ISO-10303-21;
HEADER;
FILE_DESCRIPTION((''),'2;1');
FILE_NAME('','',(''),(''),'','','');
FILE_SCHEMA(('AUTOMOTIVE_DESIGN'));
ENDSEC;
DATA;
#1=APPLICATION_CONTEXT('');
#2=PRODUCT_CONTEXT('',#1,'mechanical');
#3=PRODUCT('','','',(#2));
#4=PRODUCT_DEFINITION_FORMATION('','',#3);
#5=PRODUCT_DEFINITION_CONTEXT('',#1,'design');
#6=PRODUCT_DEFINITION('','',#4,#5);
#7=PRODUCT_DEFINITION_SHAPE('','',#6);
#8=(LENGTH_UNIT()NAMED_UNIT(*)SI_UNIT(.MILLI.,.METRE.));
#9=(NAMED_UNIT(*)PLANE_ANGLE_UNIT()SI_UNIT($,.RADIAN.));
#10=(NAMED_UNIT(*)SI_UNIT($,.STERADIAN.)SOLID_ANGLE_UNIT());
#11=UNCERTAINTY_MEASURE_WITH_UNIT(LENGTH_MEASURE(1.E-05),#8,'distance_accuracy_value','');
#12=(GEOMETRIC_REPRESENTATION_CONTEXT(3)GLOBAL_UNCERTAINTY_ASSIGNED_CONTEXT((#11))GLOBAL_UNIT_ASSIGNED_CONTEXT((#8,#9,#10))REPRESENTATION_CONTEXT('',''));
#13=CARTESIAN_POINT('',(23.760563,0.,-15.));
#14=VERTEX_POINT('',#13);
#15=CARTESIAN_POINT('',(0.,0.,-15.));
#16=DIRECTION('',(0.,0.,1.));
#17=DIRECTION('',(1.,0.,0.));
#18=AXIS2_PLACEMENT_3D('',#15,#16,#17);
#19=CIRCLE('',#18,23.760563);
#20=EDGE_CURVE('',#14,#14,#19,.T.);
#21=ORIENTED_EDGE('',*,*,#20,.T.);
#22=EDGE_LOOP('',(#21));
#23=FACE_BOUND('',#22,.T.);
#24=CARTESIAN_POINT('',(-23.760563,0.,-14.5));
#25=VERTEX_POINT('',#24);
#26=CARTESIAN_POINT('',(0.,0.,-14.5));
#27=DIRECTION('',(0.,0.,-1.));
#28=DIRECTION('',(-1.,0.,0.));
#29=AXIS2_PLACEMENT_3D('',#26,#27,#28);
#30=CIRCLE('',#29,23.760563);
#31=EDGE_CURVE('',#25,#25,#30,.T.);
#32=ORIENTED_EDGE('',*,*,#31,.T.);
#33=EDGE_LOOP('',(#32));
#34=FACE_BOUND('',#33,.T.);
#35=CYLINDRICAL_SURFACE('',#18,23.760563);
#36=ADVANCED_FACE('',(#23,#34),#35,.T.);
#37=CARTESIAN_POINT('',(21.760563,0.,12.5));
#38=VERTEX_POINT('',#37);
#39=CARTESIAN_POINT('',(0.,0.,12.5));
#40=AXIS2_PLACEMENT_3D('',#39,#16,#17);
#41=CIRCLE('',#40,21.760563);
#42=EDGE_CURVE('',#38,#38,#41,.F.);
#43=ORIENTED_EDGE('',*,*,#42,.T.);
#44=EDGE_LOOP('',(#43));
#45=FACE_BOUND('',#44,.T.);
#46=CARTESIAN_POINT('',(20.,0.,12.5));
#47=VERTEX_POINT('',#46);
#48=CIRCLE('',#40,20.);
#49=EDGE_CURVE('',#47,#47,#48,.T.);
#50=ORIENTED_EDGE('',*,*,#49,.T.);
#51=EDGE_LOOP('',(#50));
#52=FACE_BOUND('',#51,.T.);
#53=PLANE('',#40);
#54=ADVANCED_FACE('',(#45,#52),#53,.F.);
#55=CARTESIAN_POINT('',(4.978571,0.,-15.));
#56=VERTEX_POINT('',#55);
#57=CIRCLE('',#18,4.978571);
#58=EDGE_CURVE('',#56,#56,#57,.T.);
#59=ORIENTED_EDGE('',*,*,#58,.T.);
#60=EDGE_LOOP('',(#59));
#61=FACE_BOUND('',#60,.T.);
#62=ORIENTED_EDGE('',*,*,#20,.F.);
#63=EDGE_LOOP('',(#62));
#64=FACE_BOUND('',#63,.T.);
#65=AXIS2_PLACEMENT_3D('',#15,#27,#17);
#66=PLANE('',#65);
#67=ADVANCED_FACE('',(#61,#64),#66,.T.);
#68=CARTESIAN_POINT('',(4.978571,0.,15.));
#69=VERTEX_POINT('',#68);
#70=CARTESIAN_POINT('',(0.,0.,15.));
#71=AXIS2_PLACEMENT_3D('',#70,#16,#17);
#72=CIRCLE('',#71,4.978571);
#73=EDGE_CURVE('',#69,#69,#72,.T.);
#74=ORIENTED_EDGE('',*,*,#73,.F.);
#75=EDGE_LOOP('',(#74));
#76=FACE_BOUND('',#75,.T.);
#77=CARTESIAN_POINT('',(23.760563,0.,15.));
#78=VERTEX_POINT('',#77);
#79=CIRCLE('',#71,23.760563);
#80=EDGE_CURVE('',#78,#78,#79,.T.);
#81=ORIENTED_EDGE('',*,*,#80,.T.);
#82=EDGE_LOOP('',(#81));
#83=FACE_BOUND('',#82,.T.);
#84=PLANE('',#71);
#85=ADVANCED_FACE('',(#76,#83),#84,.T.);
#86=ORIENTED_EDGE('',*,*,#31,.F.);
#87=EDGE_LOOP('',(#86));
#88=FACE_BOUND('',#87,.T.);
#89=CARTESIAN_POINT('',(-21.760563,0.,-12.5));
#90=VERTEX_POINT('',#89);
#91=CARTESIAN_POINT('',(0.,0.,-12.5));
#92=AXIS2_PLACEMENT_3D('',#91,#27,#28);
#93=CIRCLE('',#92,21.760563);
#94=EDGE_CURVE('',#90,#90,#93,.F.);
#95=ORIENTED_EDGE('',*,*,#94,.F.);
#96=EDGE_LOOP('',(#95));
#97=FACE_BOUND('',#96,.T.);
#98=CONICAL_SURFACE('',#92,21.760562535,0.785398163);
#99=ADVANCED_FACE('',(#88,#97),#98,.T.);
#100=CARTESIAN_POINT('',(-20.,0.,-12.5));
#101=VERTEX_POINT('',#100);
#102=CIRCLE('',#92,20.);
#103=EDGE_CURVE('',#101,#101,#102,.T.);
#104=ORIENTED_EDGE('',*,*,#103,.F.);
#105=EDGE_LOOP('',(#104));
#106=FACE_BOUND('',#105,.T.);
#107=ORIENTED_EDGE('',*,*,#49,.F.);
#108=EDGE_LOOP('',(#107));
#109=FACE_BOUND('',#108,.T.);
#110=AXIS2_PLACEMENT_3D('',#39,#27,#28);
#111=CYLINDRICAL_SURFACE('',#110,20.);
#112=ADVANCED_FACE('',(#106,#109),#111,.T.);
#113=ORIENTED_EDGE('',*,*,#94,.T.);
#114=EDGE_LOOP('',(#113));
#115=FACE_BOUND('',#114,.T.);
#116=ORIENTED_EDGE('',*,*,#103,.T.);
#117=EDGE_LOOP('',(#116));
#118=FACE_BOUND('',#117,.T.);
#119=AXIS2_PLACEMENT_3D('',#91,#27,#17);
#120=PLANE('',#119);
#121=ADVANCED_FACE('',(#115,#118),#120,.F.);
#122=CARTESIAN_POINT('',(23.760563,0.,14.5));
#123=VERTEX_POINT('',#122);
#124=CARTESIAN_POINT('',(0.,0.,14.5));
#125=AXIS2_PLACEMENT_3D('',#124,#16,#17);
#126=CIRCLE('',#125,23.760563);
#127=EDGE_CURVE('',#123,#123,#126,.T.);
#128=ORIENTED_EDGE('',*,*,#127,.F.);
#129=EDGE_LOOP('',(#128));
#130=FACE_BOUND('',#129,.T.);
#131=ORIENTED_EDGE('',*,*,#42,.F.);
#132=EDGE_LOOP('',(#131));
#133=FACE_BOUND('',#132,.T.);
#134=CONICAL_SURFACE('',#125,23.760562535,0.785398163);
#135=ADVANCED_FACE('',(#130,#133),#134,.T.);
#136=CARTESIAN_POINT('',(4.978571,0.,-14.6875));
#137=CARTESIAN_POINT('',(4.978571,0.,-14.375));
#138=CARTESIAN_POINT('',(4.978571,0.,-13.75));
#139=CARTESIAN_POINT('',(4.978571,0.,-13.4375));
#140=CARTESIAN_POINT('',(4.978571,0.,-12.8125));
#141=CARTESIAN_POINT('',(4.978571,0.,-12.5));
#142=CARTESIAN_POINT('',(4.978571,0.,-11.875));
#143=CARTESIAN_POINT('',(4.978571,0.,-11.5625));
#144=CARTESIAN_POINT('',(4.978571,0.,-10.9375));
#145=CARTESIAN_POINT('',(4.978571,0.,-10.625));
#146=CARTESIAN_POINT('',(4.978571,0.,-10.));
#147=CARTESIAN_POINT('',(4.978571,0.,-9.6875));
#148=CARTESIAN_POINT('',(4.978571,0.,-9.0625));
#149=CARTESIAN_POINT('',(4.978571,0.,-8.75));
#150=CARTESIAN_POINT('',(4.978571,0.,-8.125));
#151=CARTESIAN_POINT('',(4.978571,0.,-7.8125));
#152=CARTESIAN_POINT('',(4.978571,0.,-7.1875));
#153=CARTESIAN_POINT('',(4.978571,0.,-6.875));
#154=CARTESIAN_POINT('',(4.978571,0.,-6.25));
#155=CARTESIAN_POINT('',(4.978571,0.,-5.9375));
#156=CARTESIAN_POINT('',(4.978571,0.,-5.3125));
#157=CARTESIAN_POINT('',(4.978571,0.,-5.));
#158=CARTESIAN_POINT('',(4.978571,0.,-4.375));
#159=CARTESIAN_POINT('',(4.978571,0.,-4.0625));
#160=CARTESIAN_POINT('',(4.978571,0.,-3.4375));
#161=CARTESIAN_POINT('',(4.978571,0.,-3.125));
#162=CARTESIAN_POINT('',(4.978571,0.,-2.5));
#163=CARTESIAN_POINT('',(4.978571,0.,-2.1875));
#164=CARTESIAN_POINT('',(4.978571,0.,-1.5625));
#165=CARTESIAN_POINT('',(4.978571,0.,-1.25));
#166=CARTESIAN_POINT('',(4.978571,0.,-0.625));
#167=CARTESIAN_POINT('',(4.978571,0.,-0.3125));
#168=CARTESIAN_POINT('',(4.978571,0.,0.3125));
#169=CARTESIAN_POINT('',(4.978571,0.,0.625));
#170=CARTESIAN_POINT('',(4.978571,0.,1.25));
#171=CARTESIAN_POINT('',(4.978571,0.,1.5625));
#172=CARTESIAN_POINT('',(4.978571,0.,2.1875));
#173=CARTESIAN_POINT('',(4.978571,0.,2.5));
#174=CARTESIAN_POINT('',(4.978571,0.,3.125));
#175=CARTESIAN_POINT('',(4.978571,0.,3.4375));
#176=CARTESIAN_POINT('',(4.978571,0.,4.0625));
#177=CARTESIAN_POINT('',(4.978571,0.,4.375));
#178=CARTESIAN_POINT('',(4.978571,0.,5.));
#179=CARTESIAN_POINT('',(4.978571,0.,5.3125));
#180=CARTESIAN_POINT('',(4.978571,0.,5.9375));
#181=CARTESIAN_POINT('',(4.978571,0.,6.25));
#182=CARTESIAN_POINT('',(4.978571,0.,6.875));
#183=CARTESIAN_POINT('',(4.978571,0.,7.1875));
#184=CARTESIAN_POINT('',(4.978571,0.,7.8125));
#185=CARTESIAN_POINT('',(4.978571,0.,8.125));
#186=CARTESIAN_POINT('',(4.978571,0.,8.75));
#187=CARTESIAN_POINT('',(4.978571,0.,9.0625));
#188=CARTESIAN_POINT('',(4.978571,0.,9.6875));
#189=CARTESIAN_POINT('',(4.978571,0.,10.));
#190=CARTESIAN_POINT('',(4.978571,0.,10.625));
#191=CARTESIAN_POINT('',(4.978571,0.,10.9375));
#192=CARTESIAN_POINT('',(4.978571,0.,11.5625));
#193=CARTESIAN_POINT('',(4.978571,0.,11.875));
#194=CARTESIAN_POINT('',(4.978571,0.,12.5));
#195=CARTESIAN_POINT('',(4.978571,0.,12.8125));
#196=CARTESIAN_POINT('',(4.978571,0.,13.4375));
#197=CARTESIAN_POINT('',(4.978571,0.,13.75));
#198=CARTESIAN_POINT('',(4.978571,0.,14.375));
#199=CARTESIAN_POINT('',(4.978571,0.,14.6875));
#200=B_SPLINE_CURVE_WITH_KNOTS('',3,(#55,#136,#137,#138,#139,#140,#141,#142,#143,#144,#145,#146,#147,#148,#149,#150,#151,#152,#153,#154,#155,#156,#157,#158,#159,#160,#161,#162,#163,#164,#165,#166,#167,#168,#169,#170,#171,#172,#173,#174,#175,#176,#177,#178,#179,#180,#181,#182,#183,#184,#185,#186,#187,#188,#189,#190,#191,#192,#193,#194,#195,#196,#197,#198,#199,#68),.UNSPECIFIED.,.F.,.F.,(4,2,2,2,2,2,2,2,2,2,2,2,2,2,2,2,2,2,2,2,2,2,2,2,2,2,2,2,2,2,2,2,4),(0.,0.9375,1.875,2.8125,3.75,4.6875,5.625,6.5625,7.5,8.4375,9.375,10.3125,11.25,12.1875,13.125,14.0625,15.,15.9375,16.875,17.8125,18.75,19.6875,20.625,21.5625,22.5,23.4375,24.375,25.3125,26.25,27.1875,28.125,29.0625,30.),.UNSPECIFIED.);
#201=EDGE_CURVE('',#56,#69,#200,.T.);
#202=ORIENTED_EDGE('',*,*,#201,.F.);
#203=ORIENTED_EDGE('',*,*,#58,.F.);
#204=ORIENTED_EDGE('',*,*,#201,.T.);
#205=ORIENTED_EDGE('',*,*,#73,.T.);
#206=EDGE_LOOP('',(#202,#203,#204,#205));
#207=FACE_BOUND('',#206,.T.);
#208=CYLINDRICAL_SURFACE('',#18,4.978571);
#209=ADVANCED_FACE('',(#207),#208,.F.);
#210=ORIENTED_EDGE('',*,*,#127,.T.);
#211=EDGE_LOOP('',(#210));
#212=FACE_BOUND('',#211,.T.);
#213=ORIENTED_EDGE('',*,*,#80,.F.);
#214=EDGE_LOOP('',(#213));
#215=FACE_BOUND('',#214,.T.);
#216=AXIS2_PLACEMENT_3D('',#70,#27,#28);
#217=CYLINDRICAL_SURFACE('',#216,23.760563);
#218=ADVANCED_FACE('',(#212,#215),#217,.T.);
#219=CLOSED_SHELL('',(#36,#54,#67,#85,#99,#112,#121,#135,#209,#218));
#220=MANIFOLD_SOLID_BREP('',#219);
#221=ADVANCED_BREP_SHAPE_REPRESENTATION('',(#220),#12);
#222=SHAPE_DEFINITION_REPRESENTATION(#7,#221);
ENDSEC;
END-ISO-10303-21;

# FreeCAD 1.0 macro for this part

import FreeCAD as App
import Part
import Sketcher


def edges_at(feature, points):
    """Names of the edges that pass closest to the given points."""
    edges = feature.Shape.Edges
    near = lambda p: min(range(len(edges)), key=lambda i: edges[i].distToShape(Part.Vertex(*p))[0])
    return sorted({f"Edge{near(p) + 1}" for p in points})

doc = App.newDocument("Part")
body = doc.addObject("PartDesign::Body", "Body")

# Sketch on XY plane
sketch1 = body.newObject("Sketcher::SketchObject", "Sketch")
sketch1.AttachmentSupport = (doc.getObject("XY_Plane"), [""])
sketch1.MapMode = "FlatFace"
sketch1.addGeometry(Part.Circle(App.Vector(0, 0, 0), App.Vector(0, 0, 1), 20), False)
sketch1.addConstraint([
    Sketcher.Constraint("Coincident", 0, 3, -1, 1),
    Sketcher.Constraint("Diameter", 0, 40.0),
])
pad1 = body.newObject("PartDesign::Pad", "Pad")
pad1.Profile = sketch1
pad1.Length = 25
pad1.Midplane = True

# Sketch on XY plane
sketch2 = body.newObject("Sketcher::SketchObject", "Sketch001")
sketch2.AttachmentSupport = (doc.getObject("XY_Plane"), [""])
sketch2.MapMode = "FlatFace"
sketch2.AttachmentOffset = App.Placement(App.Vector(0, 0, 12.5), App.Rotation())
sketch2.addGeometry(Part.Circle(App.Vector(0, 0, 0), App.Vector(0, 0, 1), 24), False)
sketch2.addConstraint([
    Sketcher.Constraint("Coincident", 0, 3, -1, 1),
    Sketcher.Constraint("Diameter", 0, 47.521125),
])
pad2 = body.newObject("PartDesign::Pad", "Pad001")
pad2.Profile = sketch2
pad2.Length = 2.5
doc.recompute()

chamfer = body.newObject("PartDesign::Chamfer", "Chamfer")
chamfer.Base = (pad2, edges_at(pad2, [(-23.761, 0, 12.5)]))
chamfer.Size = 2
doc.recompute()

mirrored = body.newObject("PartDesign::Mirrored", "Mirrored")
mirrored.Originals = [pad2]
mirrored.MirrorPlane = (doc.getObject("XY_Plane"), [""])
body.Tip = mirrored
doc.recompute()

chamfer2 = body.newObject("PartDesign::Chamfer", "Chamfer001")
chamfer2.Base = (mirrored, edges_at(mirrored, [(-23.761, 0, -12.5)]))
chamfer2.Size = 2

# Sketch on XY plane
sketch3 = body.newObject("Sketcher::SketchObject", "Sketch002")
sketch3.AttachmentSupport = (doc.getObject("XY_Plane"), [""])
sketch3.MapMode = "FlatFace"
sketch3.AttachmentOffset = App.Placement(App.Vector(0, 0, 15), App.Rotation())
sketch3.addGeometry(Part.Circle(App.Vector(0, 0, 0), App.Vector(0, 0, 1), 5), False)
sketch3.addConstraint([
    Sketcher.Constraint("Coincident", 0, 3, -1, 1),
    Sketcher.Constraint("Diameter", 0, 9.957142),
])
pocket1 = body.newObject("PartDesign::Pocket", "Pocket")
pocket1.Profile = sketch3
pocket1.Type = "ThroughAll"

doc.recompute()
